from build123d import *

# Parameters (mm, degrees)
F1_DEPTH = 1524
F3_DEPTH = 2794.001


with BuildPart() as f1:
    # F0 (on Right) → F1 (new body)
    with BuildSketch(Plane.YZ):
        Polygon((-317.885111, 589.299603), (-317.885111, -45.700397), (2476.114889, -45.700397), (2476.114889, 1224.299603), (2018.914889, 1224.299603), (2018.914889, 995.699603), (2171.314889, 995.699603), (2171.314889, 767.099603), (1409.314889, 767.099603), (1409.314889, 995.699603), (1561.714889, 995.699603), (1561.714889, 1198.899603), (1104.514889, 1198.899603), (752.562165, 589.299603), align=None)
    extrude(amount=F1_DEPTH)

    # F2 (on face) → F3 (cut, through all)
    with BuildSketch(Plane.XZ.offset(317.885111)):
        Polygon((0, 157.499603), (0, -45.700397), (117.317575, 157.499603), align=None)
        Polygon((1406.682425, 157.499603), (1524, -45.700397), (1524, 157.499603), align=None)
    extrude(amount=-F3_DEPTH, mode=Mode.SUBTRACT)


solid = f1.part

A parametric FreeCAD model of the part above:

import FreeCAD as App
import Part
import Sketcher
from FreeCAD import Vector
Q = App.Units.Quantity


def add_polygon(sketch, points):
    """Adds a closed chain of lines whose ends are joined by coincident constraints."""
    first, n = sketch.GeometryCount, len(points)
    for a, b in zip(points, points[1:] + points[:1]):
        sketch.addGeometry(Part.LineSegment(App.Vector(*a, 0), App.Vector(*b, 0)), False)
    for i in range(n):
        sketch.addConstraint(Sketcher.Constraint("Coincident", first + i, 2, first + (i + 1) % n, 1))

doc = App.newDocument("Part")
body = doc.addObject("PartDesign::Body", "Body")

sketch1 = body.newObject("Sketcher::SketchObject", "Sketch")
sketch1.AttachmentSupport = (doc.getObject("YZ_Plane"), [""])
sketch1.MapMode = "FlatFace"
add_polygon(sketch1, [(-318, 589), (-318, -46), (2476, -46), (2476, 1224), (2019, 1224), (2019, 996), (2171, 996), (2171, 767), (1409, 767), (1409, 996), (1562, 996), (1562, 1199), (1105, 1199), (753, 589)])
sketch1.addConstraint(Sketcher.Constraint("Vertical", 0))
sketch1.addConstraint(Sketcher.Constraint("Horizontal", 1))
sketch1.addConstraint(Sketcher.Constraint("Vertical", 2))
sketch1.addConstraint(Sketcher.Constraint("Horizontal", 3))
sketch1.addConstraint(Sketcher.Constraint("Vertical", 4))
sketch1.addConstraint(Sketcher.Constraint("Horizontal", 5))
sketch1.addConstraint(Sketcher.Constraint("Vertical", 6))
sketch1.addConstraint(Sketcher.Constraint("Horizontal", 7))
sketch1.addConstraint(Sketcher.Constraint("Vertical", 8))
sketch1.addConstraint(Sketcher.Constraint("Horizontal", 9))
sketch1.addConstraint(Sketcher.Constraint("Vertical", 10))
sketch1.addConstraint(Sketcher.Constraint("Horizontal", 11))
sketch1.addConstraint(Sketcher.Constraint("Horizontal", 13))
sketch1.addConstraint(Sketcher.Constraint("Horizontal", 5, 2, 8, 2))
sketch1.addConstraint(Sketcher.Constraint("Equal", 5, 9))
sketch1.addConstraint(Sketcher.Constraint("Equal", 3, 11))
sketch1.addConstraint(Sketcher.Constraint("Equal", 4, 6))
sketch1.addConstraint(Sketcher.Constraint("DistanceX", 1, 1, 1, 2, Q("110 in")))
sketch1.addConstraint(Sketcher.Constraint("DistanceX", 3, 2, 3, 1, Q("18 in")))
sketch1.addConstraint(Sketcher.Constraint("DistanceX", 5, 1, 5, 2, Q("6 in")))
sketch1.addConstraint(Sketcher.Constraint("DistanceX", 7, 2, 7, 1, Q("30 in")))
sketch1.addConstraint(Sketcher.Constraint("DistanceY", 0, 2, 0, 1, Q("25 in")))
sketch1.addConstraint(Sketcher.Constraint("DistanceY", 2, 1, 2, 2, Q("50 in")))
sketch1.addConstraint(Sketcher.Constraint("DistanceY", 4, 2, 4, 1, Q("9 in")))
sketch1.addConstraint(Sketcher.Constraint("DistanceY", 10, 1, 10, 2, Q("8 in")))
sketch1.addConstraint(Sketcher.Constraint("Angle", 12, Q("-120 deg")))
sketch1.addConstraint(Sketcher.Constraint("DistanceX", 0, 2, -1, 1, 317.885111))
sketch1.addConstraint(Sketcher.Constraint("DistanceY", 0, 2, -1, 1, 45.700397))
pad1 = body.newObject("PartDesign::Pad", "Pad")
pad1.Profile = sketch1
pad1.Length = Q("60 in")

sketch2 = body.newObject("Sketcher::SketchObject", "Sketch001")
sketch2.AttachmentSupport = (doc.getObject("XZ_Plane"), [""])
sketch2.MapMode = "FlatFace"
sketch2.AttachmentOffset = App.Placement(Vector(0, 0, 317.885111), App.Rotation())
add_polygon(sketch2, [(0, 157), (0, -46), (117, 157)])
add_polygon(sketch2, [(1407, 157), (1524, -46), (1524, 157)])
sketch2.addConstraint(Sketcher.Constraint("Vertical", 0))
sketch2.addConstraint(Sketcher.Constraint("Horizontal", 2))
sketch2.addConstraint(Sketcher.Constraint("Vertical", 4))
sketch2.addConstraint(Sketcher.Constraint("Horizontal", 5))
sketch2.addConstraint(Sketcher.Constraint("PointOnObject", 0, 2, -2))
sketch2.addConstraint(Sketcher.Constraint("Horizontal", 0, 2, 3, 2))
sketch2.addConstraint(Sketcher.Constraint("Horizontal", 2, 2, 4, 2))
sketch2.addConstraint(Sketcher.Constraint("Equal", 2, 5))
sketch2.addConstraint(Sketcher.Constraint("DistanceY", 0, 2, 0, 1, Q("8 in")))
sketch2.addConstraint(Sketcher.Constraint("DistanceX", -1, 1, 3, 2, Q("60 in")))
sketch2.addConstraint(Sketcher.Constraint("Angle", 1, Q("60 deg")))
sketch2.addConstraint(Sketcher.Constraint("DistanceY", 0, 2, -1, 1, 45.700397))
pocket1 = body.newObject("PartDesign::Pocket", "Pocket")
pocket1.Profile = sketch2
pocket1.Type = "ThroughAll"

doc.recompute()
